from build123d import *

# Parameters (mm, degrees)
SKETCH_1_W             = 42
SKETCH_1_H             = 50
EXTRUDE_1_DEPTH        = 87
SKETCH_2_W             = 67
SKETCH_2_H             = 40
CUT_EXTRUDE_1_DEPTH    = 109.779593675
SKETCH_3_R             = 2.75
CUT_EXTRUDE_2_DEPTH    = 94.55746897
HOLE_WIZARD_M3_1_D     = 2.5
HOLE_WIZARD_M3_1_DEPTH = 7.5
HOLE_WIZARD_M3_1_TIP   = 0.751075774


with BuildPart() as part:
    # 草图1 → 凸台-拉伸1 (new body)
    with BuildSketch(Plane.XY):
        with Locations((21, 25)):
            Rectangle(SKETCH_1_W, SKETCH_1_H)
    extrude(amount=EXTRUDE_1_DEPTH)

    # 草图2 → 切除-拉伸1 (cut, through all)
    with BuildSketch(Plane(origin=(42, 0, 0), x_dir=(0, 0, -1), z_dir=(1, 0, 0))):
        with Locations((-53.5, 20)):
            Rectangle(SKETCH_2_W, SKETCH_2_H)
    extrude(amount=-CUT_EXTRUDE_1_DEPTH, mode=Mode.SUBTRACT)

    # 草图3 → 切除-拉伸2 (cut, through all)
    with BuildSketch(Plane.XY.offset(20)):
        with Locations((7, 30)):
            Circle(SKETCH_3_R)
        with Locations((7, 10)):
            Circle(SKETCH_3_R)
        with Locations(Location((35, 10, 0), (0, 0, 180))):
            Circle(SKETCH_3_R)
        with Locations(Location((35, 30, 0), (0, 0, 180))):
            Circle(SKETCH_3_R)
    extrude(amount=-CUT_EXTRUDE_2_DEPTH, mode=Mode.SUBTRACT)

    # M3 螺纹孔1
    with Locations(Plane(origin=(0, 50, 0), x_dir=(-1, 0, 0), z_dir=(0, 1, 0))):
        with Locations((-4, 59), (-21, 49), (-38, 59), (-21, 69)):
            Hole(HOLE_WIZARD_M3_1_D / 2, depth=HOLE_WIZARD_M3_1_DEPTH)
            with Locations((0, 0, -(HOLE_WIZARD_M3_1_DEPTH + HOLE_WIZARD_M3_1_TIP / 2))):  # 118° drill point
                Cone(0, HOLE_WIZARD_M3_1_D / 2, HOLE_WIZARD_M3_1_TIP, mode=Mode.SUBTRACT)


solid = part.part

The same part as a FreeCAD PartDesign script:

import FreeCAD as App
import Part
import Sketcher

V = App.Vector
Q = App.Units.Quantity

doc = App.newDocument("Part")
body = doc.addObject("PartDesign::Body", "Body")

sketch1 = body.newObject("Sketcher::SketchObject", "Sketch")
sketch1.AttachmentSupport = (doc.getObject("XY_Plane"), [""])
sketch1.MapMode = "FlatFace"
sketch1.addGeometry(Part.LineSegment(V(0, 50, 0), V(0, 0, 0)), False)
sketch1.addGeometry(Part.LineSegment(V(0, 0, 0), V(42, 0, 0)), False)
sketch1.addGeometry(Part.LineSegment(V(42, 0, 0), V(42, 50, 0)), False)
sketch1.addGeometry(Part.LineSegment(V(42, 50, 0), V(0, 50, 0)), False)
sketch1.addConstraint(Sketcher.Constraint("Coincident", 0, 2, 1, 1))
sketch1.addConstraint(Sketcher.Constraint("Coincident", 1, 2, 2, 1))
sketch1.addConstraint(Sketcher.Constraint("Coincident", 2, 2, 3, 1))
sketch1.addConstraint(Sketcher.Constraint("Coincident", 3, 2, 0, 1))
sketch1.addConstraint(Sketcher.Constraint("Vertical", 0))
sketch1.addConstraint(Sketcher.Constraint("Horizontal", 1))
sketch1.addConstraint(Sketcher.Constraint("Vertical", 2))
sketch1.addConstraint(Sketcher.Constraint("Horizontal", 3))
sketch1.addConstraint(Sketcher.Constraint("Coincident", 0, 2, -1, 1))
sketch1.addConstraint(Sketcher.Constraint("DistanceX", 1, 1, 1, 2, Q("42 mm")))
sketch1.addConstraint(Sketcher.Constraint("DistanceY", 0, 2, 0, 1, Q("50 mm")))
pad1 = body.newObject("PartDesign::Pad", "Pad")
pad1.Profile = sketch1
pad1.Length = 87

sketch2 = body.newObject("Sketcher::SketchObject", "Sketch001")
sketch2.AttachmentSupport = (doc.getObject("YZ_Plane"), [""])
sketch2.MapMode = "FlatFace"
sketch2.AttachmentOffset = App.Placement(V(0, 0, 42), App.Rotation())
sketch2.addGeometry(Part.LineSegment(V(40, 87, 0), V(0, 87, 0)), False)
sketch2.addGeometry(Part.LineSegment(V(0, 87, 0), V(0, 20, 0)), False)
sketch2.addGeometry(Part.LineSegment(V(0, 20, 0), V(40, 20, 0)), False)
sketch2.addGeometry(Part.LineSegment(V(40, 20, 0), V(40, 87, 0)), False)
sketch2.addConstraint(Sketcher.Constraint("Coincident", 0, 2, 1, 1))
sketch2.addConstraint(Sketcher.Constraint("Coincident", 1, 2, 2, 1))
sketch2.addConstraint(Sketcher.Constraint("Coincident", 2, 2, 3, 1))
sketch2.addConstraint(Sketcher.Constraint("Coincident", 3, 2, 0, 1))
sketch2.addConstraint(Sketcher.Constraint("Horizontal", 0))
sketch2.addConstraint(Sketcher.Constraint("Vertical", 1))
sketch2.addConstraint(Sketcher.Constraint("Horizontal", 2))
sketch2.addConstraint(Sketcher.Constraint("Vertical", 3))
sketch2.addConstraint(Sketcher.Constraint("PointOnObject", 0, 2, -2))
sketch2.addConstraint(Sketcher.Constraint("DistanceX", 0, 2, 0, 1, Q("40 mm")))
sketch2.addConstraint(Sketcher.Constraint("DistanceY", 1, 2, 1, 1, Q("67 mm")))
sketch2.addConstraint(Sketcher.Constraint("DistanceY", -1, 1, 0, 2, Q("87 mm")))
pocket1 = body.newObject("PartDesign::Pocket", "Pocket")
pocket1.Profile = sketch2
pocket1.Type = "ThroughAll"

sketch3 = body.newObject("Sketcher::SketchObject", "Sketch002")
sketch3.AttachmentSupport = (doc.getObject("XY_Plane"), [""])
sketch3.MapMode = "FlatFace"
sketch3.AttachmentOffset = App.Placement(V(0, 0, 20), App.Rotation())
sketch3.addGeometry(Part.Circle(V(7, 30, 0), V(0, 0, 1), 2.8), False)
sketch3.addGeometry(Part.Circle(V(7, 10, 0), V(0, 0, 1), 2.8), False)
sketch3.addGeometry(Part.Circle(V(35, 10, 0), V(0, 0, 1), 2.8), False)
sketch3.addGeometry(Part.Circle(V(35, 30, 0), V(0, 0, 1), 2.8), False)
sketch3.addConstraint(Sketcher.Constraint("Equal", 0, 1))
sketch3.addConstraint(Sketcher.Constraint("Equal", 1, 2))
sketch3.addConstraint(Sketcher.Constraint("Equal", 2, 3))
sketch3.addConstraint(Sketcher.Constraint("Horizontal", 1, 3, 2, 3))
sketch3.addConstraint(Sketcher.Constraint("Horizontal", 0, 3, 3, 3))
sketch3.addConstraint(Sketcher.Constraint("Vertical", 0, 3, 1, 3))
sketch3.addConstraint(Sketcher.Constraint("Vertical", 2, 3, 3, 3))
sketch3.addConstraint(Sketcher.Constraint("Diameter", 0, Q("5.5 mm")))
sketch3.addConstraint(Sketcher.Constraint("DistanceX", -1, 1, 0, 3, Q("7 mm")))
sketch3.addConstraint(Sketcher.Constraint("DistanceY", -1, 1, 0, 3, Q("30 mm")))
sketch3.addConstraint(Sketcher.Constraint("DistanceY", -1, 1, 1, 3, Q("10 mm")))
sketch3.addConstraint(Sketcher.Constraint("DistanceX", -1, 1, 2, 3, Q("35 mm")))
pocket2 = body.newObject("PartDesign::Pocket", "Pocket001")
pocket2.Profile = sketch3
pocket2.Type = "ThroughAll"

sketch4 = body.newObject("Sketcher::SketchObject", "Sketch003")
sketch4.AttachmentSupport = (doc.getObject("XZ_Plane"), [""])
sketch4.MapMode = "FlatFace"
sketch4.AttachmentOffset = App.Placement(V(0, 0, -50), App.Rotation())
sketch4.addGeometry(Part.Circle(V(4, 59, 0), V(0, 0, 1), 1.2), False)
sketch4.addGeometry(Part.Circle(V(21, 49, 0), V(0, 0, 1), 1.2), False)
sketch4.addGeometry(Part.Circle(V(38, 59, 0), V(0, 0, 1), 1.2), False)
sketch4.addGeometry(Part.Circle(V(21, 69, 0), V(0, 0, 1), 1.2), False)
sketch4.addConstraint(Sketcher.Constraint("Equal", 0, 1))
sketch4.addConstraint(Sketcher.Constraint("Equal", 1, 2))
sketch4.addConstraint(Sketcher.Constraint("Equal", 2, 3))
sketch4.addConstraint(Sketcher.Constraint("Horizontal", 0, 3, 2, 3))
sketch4.addConstraint(Sketcher.Constraint("Vertical", 1, 3, 3, 3))
sketch4.addConstraint(Sketcher.Constraint("Diameter", 0, Q("2.5 mm")))
sketch4.addConstraint(Sketcher.Constraint("DistanceX", -1, 1, 0, 3, Q("4 mm")))
sketch4.addConstraint(Sketcher.Constraint("DistanceY", -1, 1, 0, 3, Q("59 mm")))
sketch4.addConstraint(Sketcher.Constraint("DistanceX", -1, 1, 1, 3, Q("21 mm")))
sketch4.addConstraint(Sketcher.Constraint("DistanceY", -1, 1, 1, 3, Q("49 mm")))
sketch4.addConstraint(Sketcher.Constraint("DistanceX", -1, 1, 2, 3, Q("38 mm")))
sketch4.addConstraint(Sketcher.Constraint("DistanceY", -1, 1, 3, 3, Q("69 mm")))
doc.recompute()
hole = body.newObject("PartDesign::Hole", "Hole")
hole.Profile = sketch4
hole.ThreadType = "None"
hole.Diameter = 2.5
hole.DepthType = "Dimension"
hole.Depth = 7.5
hole.DrillPoint = "Angled"
hole.DrillPointAngle = 118
hole.Reversed = True

doc.recompute()
